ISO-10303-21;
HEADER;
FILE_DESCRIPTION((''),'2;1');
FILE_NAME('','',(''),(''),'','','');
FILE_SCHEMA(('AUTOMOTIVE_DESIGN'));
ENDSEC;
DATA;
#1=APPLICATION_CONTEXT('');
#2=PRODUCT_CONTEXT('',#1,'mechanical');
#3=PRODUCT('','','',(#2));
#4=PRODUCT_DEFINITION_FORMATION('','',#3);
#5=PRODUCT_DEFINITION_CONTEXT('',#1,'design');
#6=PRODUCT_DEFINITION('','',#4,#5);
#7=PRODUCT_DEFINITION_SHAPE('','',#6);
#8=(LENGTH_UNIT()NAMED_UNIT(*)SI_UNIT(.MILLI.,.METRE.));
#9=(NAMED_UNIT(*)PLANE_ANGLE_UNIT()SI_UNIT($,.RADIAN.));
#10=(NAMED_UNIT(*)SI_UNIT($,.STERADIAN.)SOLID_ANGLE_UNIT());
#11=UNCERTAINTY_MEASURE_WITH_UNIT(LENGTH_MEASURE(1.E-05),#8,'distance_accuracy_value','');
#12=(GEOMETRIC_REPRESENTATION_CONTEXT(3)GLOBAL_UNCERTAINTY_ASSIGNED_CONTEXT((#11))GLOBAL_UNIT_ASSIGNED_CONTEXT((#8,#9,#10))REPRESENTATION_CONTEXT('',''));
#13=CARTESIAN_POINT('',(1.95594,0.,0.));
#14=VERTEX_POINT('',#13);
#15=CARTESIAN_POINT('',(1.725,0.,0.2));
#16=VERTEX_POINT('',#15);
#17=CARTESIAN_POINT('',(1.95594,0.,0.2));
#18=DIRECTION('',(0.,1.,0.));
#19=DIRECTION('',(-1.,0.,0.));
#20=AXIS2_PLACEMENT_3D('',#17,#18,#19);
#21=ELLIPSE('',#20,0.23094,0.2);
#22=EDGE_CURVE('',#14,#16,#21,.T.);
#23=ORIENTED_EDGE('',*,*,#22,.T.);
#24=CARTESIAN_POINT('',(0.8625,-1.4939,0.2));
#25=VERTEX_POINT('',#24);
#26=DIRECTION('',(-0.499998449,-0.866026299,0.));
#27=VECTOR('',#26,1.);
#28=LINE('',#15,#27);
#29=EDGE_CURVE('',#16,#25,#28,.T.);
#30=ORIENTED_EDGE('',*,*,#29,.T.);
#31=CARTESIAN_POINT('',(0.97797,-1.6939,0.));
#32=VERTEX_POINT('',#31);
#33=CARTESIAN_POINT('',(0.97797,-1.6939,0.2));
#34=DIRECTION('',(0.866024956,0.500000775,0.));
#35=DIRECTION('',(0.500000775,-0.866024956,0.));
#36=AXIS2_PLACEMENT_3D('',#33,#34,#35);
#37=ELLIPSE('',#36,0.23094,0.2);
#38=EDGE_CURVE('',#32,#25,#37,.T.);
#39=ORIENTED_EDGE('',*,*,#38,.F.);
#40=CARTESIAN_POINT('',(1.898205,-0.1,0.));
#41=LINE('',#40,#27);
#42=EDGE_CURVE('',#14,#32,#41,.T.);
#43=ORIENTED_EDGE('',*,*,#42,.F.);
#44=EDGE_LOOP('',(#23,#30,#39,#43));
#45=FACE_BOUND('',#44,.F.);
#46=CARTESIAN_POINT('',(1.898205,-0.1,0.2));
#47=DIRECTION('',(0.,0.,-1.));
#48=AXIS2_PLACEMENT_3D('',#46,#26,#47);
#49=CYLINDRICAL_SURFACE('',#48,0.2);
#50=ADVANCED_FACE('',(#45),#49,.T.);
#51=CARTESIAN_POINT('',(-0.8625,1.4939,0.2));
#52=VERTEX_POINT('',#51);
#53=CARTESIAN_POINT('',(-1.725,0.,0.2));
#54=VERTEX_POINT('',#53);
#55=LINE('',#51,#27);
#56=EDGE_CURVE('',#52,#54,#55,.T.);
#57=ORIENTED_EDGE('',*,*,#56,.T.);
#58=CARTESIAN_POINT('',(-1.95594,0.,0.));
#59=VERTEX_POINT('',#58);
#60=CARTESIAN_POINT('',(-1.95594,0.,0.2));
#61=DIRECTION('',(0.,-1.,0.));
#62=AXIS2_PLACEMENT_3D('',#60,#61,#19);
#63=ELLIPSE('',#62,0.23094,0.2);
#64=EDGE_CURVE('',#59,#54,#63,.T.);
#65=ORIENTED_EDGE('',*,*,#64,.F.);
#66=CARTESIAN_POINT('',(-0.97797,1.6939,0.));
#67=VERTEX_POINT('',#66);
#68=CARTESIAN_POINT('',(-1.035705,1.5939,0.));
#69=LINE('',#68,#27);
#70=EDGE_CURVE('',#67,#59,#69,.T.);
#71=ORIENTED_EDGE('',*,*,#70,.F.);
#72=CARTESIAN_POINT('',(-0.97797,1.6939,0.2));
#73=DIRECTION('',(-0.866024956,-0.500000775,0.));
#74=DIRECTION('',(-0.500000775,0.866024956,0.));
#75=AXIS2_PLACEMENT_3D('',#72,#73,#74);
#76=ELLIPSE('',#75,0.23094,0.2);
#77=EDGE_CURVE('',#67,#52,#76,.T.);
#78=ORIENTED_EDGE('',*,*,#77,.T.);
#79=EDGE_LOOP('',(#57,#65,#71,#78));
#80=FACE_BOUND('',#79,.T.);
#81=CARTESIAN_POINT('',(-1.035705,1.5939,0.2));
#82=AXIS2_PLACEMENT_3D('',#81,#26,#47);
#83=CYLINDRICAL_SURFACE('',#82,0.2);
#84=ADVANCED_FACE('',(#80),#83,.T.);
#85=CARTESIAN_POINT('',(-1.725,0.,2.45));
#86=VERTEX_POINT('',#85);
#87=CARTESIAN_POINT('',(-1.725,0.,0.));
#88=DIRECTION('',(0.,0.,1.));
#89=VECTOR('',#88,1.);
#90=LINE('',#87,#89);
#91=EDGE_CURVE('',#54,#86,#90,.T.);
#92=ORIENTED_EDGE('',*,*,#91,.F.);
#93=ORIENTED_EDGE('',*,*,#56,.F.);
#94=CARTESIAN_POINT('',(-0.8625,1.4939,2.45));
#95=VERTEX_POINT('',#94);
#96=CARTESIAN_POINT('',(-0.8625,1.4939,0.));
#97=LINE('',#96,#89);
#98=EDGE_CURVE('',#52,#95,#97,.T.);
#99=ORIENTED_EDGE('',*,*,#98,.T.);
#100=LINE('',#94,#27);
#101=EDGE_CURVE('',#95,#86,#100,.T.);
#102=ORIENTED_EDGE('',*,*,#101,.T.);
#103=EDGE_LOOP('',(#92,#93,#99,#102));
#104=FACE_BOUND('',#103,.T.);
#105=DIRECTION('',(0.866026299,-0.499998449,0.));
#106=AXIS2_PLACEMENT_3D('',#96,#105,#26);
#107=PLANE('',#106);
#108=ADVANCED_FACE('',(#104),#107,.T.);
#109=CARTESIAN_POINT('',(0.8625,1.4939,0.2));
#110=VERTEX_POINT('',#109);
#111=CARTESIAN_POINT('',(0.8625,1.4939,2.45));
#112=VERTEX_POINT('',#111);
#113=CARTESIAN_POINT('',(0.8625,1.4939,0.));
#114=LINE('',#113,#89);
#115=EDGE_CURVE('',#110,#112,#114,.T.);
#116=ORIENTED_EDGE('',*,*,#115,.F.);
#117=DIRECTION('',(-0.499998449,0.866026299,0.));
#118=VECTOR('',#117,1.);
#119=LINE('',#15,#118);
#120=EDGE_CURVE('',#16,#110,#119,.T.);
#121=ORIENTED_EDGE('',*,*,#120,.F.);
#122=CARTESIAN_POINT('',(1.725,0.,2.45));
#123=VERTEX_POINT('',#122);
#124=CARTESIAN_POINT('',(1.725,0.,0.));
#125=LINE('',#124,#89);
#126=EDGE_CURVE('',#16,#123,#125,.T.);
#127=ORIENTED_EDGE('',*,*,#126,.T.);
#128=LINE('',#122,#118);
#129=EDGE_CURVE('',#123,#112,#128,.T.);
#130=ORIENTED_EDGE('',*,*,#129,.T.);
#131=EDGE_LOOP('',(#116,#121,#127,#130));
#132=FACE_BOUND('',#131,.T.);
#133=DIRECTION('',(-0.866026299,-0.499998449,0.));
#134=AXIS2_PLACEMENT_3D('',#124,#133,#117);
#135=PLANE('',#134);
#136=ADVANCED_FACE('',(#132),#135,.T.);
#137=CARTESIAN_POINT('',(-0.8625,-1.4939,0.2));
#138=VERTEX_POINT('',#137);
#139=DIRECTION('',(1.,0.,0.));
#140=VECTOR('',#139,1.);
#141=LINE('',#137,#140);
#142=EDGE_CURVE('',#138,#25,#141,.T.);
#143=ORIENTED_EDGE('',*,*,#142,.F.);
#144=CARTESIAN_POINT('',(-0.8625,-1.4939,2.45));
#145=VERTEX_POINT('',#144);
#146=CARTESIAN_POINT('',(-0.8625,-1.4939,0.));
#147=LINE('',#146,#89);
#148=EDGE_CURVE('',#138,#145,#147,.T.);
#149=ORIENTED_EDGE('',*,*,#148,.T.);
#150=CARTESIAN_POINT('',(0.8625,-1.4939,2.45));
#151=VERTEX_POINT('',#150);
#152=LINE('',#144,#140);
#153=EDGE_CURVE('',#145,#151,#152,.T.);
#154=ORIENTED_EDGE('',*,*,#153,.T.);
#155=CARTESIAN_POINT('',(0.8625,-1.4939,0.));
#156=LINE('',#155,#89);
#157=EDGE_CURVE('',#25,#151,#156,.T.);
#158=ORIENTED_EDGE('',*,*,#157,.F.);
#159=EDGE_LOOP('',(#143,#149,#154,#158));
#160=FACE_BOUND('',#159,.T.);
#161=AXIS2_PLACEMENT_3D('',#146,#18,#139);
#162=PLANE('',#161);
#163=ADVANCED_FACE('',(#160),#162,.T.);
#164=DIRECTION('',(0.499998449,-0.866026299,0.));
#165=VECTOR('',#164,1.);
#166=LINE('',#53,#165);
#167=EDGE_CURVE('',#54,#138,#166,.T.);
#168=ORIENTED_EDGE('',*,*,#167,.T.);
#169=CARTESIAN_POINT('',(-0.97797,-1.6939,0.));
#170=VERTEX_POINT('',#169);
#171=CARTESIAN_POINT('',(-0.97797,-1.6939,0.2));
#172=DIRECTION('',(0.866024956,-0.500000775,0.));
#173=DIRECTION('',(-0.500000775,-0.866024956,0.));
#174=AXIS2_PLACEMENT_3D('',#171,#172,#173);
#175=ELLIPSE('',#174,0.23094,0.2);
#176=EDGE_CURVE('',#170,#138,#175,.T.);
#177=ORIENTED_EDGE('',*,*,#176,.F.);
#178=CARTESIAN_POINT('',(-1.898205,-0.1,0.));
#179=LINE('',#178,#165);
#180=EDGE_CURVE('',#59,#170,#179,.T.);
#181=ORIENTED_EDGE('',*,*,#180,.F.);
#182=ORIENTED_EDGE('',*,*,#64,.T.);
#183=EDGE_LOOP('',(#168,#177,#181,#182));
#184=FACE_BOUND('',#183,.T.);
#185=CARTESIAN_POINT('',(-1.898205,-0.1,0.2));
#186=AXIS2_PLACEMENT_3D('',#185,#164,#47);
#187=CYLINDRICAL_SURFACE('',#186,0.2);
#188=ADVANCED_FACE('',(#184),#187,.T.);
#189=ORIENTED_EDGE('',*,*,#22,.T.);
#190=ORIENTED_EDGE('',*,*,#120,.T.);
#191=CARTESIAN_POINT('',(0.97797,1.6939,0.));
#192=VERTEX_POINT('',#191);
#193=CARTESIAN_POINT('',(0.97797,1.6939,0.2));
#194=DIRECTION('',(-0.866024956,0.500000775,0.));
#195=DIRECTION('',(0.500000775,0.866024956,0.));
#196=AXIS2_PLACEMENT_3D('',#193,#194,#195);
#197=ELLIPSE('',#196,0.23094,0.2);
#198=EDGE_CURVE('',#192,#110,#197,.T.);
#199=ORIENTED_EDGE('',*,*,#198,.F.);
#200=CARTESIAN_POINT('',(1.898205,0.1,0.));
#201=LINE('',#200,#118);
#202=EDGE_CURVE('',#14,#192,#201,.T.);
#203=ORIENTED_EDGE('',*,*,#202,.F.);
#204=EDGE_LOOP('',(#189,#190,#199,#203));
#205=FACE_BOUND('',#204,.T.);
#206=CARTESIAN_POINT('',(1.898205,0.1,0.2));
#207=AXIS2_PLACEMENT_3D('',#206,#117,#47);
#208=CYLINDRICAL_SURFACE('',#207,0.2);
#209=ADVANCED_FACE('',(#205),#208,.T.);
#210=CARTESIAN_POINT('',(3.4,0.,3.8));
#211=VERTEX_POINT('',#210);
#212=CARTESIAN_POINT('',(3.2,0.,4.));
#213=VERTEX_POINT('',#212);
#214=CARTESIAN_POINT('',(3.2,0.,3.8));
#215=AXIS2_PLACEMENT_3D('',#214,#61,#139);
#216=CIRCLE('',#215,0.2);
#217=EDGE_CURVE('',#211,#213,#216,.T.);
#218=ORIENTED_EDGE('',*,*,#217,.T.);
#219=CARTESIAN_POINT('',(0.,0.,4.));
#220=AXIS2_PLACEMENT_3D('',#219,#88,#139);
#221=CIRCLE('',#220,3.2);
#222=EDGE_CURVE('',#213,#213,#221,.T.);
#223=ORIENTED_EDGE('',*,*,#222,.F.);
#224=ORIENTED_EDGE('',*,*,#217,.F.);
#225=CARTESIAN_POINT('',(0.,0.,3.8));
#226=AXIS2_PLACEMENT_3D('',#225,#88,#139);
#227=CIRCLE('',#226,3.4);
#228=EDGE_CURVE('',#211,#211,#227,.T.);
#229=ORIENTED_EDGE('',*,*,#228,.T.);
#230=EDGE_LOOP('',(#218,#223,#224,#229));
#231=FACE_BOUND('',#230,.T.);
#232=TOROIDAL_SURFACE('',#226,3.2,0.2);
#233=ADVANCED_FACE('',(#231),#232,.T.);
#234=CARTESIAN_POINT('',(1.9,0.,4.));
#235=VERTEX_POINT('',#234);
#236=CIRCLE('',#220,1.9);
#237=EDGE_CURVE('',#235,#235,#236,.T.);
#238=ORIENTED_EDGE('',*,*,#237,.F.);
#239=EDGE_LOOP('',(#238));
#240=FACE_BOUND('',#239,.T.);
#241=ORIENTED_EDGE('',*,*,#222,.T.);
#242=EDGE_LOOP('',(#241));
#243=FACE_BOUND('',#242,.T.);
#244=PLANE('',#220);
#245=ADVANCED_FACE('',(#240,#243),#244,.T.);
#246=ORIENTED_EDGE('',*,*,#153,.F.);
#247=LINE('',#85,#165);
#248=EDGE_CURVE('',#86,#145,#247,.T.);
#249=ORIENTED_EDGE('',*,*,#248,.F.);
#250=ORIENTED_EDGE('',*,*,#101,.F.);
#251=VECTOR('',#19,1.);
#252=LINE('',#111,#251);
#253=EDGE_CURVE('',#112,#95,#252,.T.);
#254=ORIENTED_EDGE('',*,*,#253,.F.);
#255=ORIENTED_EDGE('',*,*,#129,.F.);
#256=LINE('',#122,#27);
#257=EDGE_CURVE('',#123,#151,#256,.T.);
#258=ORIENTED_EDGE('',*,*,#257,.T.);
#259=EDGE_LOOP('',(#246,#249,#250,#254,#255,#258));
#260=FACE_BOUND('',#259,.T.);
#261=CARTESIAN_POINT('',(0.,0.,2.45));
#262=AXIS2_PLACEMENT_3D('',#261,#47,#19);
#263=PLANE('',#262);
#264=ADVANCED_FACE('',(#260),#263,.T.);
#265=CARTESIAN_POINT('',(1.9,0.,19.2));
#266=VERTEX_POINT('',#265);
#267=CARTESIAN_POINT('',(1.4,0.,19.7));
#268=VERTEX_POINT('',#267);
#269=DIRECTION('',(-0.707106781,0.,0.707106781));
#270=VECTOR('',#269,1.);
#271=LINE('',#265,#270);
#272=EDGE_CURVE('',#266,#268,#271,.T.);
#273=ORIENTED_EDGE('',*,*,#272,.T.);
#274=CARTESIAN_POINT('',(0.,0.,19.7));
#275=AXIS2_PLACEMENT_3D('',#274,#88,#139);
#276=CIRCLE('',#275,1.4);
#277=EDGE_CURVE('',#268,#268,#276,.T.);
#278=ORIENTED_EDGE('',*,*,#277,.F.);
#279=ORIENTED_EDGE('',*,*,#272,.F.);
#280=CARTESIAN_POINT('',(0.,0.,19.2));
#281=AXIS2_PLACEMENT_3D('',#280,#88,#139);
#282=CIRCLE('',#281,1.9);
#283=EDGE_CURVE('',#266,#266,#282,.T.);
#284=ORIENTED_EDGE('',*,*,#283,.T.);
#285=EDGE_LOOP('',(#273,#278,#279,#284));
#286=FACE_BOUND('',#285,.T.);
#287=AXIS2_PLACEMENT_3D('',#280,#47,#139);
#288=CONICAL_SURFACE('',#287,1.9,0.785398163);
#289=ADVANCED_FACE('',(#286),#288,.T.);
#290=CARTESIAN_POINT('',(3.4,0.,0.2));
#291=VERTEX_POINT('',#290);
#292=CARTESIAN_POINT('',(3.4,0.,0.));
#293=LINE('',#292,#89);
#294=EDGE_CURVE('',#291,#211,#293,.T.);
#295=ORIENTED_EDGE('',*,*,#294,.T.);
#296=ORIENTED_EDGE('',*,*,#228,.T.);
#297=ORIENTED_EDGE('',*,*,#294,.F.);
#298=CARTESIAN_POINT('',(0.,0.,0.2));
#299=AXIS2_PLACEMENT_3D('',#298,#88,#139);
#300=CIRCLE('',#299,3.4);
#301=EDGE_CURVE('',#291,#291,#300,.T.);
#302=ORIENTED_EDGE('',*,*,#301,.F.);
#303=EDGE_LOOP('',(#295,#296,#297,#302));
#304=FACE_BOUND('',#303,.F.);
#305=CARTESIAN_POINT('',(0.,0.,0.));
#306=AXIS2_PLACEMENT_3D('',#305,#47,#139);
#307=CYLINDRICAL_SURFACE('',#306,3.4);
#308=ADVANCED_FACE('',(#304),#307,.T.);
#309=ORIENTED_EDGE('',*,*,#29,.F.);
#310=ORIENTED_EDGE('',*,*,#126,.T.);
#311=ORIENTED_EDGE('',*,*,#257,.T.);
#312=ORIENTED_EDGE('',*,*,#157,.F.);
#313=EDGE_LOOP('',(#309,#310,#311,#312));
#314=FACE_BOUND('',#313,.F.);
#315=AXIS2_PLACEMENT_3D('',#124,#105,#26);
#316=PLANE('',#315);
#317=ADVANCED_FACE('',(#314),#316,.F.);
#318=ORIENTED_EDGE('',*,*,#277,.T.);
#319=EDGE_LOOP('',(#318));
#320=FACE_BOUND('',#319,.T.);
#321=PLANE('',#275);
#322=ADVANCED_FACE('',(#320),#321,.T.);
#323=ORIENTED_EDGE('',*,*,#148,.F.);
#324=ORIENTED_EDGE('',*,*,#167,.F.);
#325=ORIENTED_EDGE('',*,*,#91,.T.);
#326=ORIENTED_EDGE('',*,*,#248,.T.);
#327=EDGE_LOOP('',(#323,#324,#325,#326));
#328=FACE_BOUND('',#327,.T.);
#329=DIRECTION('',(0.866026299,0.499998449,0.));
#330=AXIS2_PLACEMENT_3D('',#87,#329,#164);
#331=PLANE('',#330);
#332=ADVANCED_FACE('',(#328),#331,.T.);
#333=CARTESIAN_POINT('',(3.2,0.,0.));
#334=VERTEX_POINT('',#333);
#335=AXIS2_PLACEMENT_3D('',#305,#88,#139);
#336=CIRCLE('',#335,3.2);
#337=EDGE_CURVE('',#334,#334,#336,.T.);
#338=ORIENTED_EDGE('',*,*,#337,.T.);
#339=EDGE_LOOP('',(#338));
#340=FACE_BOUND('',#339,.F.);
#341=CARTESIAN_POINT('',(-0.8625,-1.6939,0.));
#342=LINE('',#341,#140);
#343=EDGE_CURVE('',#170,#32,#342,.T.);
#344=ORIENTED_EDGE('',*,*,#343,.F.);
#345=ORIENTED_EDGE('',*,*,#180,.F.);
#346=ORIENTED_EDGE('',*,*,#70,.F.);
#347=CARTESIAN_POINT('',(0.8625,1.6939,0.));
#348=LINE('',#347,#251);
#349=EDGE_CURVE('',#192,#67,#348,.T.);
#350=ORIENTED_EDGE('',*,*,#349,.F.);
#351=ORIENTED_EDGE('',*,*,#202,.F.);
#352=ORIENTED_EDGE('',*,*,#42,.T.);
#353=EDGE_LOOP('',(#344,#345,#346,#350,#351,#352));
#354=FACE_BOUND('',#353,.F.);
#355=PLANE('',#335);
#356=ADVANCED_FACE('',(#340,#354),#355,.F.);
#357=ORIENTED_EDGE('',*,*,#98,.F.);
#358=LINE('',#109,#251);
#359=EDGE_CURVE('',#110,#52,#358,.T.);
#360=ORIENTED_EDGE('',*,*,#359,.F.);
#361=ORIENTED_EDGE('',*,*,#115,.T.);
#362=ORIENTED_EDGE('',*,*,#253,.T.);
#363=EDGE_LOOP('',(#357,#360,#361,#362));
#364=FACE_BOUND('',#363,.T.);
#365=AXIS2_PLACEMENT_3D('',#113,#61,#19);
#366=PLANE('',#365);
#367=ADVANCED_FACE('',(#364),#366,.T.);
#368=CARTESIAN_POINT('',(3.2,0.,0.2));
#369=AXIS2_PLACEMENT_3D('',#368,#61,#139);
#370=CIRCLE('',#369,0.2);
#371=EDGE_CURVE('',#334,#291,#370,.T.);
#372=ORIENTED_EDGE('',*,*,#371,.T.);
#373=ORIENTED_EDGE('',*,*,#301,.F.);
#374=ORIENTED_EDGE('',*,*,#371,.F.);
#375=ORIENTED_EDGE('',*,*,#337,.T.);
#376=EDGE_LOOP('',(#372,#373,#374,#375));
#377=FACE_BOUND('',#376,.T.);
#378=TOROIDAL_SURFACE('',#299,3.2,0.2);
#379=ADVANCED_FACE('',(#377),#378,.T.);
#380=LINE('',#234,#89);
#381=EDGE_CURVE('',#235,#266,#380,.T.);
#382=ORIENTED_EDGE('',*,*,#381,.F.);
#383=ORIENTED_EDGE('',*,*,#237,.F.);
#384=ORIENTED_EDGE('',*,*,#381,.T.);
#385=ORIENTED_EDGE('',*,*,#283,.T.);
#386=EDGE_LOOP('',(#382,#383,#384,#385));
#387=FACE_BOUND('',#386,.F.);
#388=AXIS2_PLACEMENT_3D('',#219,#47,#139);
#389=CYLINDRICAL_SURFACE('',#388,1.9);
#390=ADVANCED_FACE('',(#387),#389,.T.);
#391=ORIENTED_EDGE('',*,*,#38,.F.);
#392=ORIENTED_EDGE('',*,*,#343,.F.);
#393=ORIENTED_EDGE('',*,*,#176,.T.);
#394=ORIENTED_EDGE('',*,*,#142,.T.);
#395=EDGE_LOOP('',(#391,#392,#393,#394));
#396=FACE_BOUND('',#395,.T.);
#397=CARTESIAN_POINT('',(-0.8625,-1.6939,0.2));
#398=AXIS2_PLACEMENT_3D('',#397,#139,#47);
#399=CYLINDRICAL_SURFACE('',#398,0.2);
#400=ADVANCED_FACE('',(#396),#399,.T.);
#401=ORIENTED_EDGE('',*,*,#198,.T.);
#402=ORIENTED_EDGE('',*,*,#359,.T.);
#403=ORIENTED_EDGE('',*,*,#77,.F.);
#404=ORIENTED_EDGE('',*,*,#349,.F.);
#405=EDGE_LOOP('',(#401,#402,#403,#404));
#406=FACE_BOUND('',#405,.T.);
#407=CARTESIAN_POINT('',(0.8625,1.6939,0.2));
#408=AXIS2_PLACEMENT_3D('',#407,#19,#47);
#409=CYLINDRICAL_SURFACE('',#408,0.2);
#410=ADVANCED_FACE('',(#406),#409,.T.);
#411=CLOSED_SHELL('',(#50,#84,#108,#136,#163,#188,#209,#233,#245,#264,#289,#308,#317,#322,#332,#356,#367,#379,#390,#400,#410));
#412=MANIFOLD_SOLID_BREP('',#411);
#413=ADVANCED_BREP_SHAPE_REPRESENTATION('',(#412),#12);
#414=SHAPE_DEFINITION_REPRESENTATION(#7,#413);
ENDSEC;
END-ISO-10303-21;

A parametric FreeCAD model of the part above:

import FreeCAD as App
import Part
import Sketcher

V = App.Vector
Q = App.Units.Quantity


def edges_at(feature, points):
    """Names of the edges that pass closest to the given points."""
    edges = feature.Shape.Edges
    near = lambda p: min(range(len(edges)), key=lambda i: edges[i].distToShape(Part.Vertex(*p))[0])
    return sorted({f"Edge{near(p) + 1}" for p in points})


def add_polygon(sketch, points):
    """Adds a closed chain of lines whose ends are joined by coincident constraints."""
    first, n = sketch.GeometryCount, len(points)
    for a, b in zip(points, points[1:] + points[:1]):
        sketch.addGeometry(Part.LineSegment(App.Vector(*a, 0), App.Vector(*b, 0)), False)
    for i in range(n):
        sketch.addConstraint(Sketcher.Constraint("Coincident", first + i, 2, first + (i + 1) % n, 1))

doc = App.newDocument("Part")
body = doc.addObject("PartDesign::Body", "Body")

# Sketch on XY plane
sketch1 = doc.addObject("Sketcher::SketchObject", "Sketch")
body.addObject(sketch1)
sketch1.AttachmentSupport = (doc.XY_Plane, [""])
sketch1.MapMode = "FlatFace"
sketch1.addGeometry(Part.Circle(V(0, 0, 0), V(0, 0, 1), 3.4), False)
sketch1.addConstraint(Sketcher.Constraint("Coincident", 0, 3, -1, 1))
sketch1.addConstraint(Sketcher.Constraint("Diameter", 0, Q("6.8 mm")))
pad1 = doc.addObject("PartDesign::Pad", "Pad")
body.addObject(pad1)
pad1.Profile = sketch1
pad1.Length = 4

# Sketch on XY plane
sketch2 = doc.addObject("Sketcher::SketchObject", "Sketch001")
body.addObject(sketch2)
sketch2.AttachmentSupport = (doc.XY_Plane, [""])
sketch2.MapMode = "FlatFace"
sketch2.AttachmentOffset = App.Placement(V(0, 0, 4), App.Rotation())
sketch2.addGeometry(Part.Circle(V(0, 0, 0), V(0, 0, 1), 1.9), False)
sketch2.addConstraint(Sketcher.Constraint("Coincident", 0, 3, -1, 1))
sketch2.addConstraint(Sketcher.Constraint("Diameter", 0, Q("3.8 mm")))
pad2 = doc.addObject("PartDesign::Pad", "Pad001")
body.addObject(pad2)
pad2.Profile = sketch2
pad2.Length = 15.7

# Sketch on XY plane
sketch3 = doc.addObject("Sketcher::SketchObject", "Sketch002")
body.addObject(sketch3)
sketch3.AttachmentSupport = (doc.XY_Plane, [""])
sketch3.MapMode = "FlatFace"
add_polygon(sketch3, [(-0.9, 1.5), (0.9, 1.5), (1.7, 0), (0.9, -1.5), (-0.9, -1.5), (-1.7, 0)])  # lines 0-5
sketch3.addConstraint(Sketcher.Constraint("Horizontal", 0))
sketch3.addConstraint(Sketcher.Constraint("Horizontal", 3))
sketch3.addConstraint(Sketcher.Constraint("Symmetric", 0, 2, 3, 2, -1, 1))
sketch3.addConstraint(Sketcher.Constraint("Symmetric", 1, 2, 4, 2, -1, 1))
sketch3.addConstraint(Sketcher.Constraint("PointOnObject", 1, 2, -1))
sketch3.addConstraint(Sketcher.Constraint("Parallel", 2, 5))
sketch3.addConstraint(Sketcher.Constraint("Vertical", 0, 2, 2, 2))
sketch3.addConstraint(Sketcher.Constraint("Angle", 1, Q("-60 deg")))
sketch3.addConstraint(Sketcher.Constraint("DistanceX", 0, 1, 0, 2, Q("1.725 mm")))
sketch3.addConstraint(Sketcher.Constraint("DistanceX", 4, 2, 1, 2, Q("3.45 mm")))
pocket1 = doc.addObject("PartDesign::Pocket", "Pocket")
body.addObject(pocket1)
pocket1.Profile = sketch3
pocket1.Length = 2.45
pocket1.Reversed = True
doc.recompute()

fillet = doc.addObject("PartDesign::Fillet", "Fillet")
body.addObject(fillet)
fillet.Base = (pocket1, edges_at(pocket1, [
    (1.294, 0.747, 0),
    (0, 1.494, 0),
    (-1.294, 0.747, 0),
    (-1.294, -0.747, 0),
    (0, -1.494, 0),
    (1.294, -0.747, 0),
]))
fillet.Radius = 0.2
doc.recompute()

fillet2 = doc.addObject("PartDesign::Fillet", "Fillet001")
body.addObject(fillet2)
fillet2.Base = (fillet, edges_at(fillet, [(-3.4, 0, 0), (-3.4, 0, 4)]))
fillet2.Radius = 0.2
doc.recompute()

chamfer = doc.addObject("PartDesign::Chamfer", "Chamfer")
body.addObject(chamfer)
chamfer.Base = (fillet2, edges_at(fillet2, [(-1.9, 0, 19.7)]))
chamfer.Size = 0.5

doc.recompute()
